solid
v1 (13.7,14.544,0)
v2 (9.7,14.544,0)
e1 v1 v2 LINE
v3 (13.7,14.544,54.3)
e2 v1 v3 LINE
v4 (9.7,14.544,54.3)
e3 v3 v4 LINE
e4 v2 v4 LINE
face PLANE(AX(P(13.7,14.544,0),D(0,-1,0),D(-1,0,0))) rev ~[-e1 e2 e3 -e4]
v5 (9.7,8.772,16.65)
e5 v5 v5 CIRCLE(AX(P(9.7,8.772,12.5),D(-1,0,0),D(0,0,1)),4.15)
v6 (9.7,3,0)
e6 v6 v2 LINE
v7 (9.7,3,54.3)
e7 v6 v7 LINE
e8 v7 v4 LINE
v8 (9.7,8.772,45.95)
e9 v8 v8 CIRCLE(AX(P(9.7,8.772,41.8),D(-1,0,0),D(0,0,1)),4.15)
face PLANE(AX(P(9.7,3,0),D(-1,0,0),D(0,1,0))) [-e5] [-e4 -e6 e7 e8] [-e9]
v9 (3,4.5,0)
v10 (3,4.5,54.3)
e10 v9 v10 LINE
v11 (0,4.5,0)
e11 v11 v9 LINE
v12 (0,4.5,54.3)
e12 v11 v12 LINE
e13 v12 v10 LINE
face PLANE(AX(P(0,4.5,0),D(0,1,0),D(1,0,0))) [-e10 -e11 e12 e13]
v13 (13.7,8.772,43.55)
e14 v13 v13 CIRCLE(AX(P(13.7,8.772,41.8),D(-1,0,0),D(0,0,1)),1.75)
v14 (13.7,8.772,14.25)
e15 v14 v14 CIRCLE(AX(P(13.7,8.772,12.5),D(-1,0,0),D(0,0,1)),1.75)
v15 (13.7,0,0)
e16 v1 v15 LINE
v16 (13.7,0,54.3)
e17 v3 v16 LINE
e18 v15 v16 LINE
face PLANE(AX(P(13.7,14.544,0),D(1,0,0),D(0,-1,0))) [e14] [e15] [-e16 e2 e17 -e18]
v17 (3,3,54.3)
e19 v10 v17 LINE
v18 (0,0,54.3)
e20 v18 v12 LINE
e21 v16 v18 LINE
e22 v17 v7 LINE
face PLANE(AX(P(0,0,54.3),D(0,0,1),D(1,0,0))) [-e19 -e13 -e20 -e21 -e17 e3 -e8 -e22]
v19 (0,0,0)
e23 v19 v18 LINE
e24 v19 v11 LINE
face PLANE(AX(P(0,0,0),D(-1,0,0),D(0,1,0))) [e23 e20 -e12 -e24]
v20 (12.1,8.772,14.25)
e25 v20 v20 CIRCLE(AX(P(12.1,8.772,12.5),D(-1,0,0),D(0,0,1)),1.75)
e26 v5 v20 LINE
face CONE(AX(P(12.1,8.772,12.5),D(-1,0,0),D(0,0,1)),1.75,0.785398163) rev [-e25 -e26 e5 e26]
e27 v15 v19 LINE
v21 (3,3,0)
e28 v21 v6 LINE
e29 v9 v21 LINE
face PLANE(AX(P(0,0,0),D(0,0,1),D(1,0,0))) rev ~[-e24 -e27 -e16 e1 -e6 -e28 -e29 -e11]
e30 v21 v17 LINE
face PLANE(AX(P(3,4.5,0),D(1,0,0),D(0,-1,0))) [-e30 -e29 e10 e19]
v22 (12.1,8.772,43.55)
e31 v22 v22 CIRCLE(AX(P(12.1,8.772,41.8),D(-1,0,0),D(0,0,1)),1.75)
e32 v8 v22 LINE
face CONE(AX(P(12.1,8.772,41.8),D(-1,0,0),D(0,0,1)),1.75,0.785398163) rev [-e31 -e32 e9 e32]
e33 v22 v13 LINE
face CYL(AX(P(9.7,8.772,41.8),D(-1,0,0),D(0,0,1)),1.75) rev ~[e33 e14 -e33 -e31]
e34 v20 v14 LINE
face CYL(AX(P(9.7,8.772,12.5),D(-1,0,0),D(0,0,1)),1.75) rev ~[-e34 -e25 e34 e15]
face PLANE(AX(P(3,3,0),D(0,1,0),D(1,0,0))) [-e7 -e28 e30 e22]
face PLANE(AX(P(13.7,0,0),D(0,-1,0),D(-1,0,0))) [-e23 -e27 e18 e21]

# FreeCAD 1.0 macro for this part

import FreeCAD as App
import Part
import Sketcher

V = App.Vector
Q = App.Units.Quantity


def edges_at(feature, points):
    """Names of the edges that pass closest to the given points."""
    edges = feature.Shape.Edges
    near = lambda p: min(range(len(edges)), key=lambda i: edges[i].distToShape(Part.Vertex(*p))[0])
    return sorted({f"Edge{near(p) + 1}" for p in points})


def add_polygon(sketch, points):
    """Adds a closed chain of lines whose ends are joined by coincident constraints."""
    first, n = sketch.GeometryCount, len(points)
    for a, b in zip(points, points[1:] + points[:1]):
        sketch.addGeometry(Part.LineSegment(App.Vector(*a, 0), App.Vector(*b, 0)), False)
    for i in range(n):
        sketch.addConstraint(Sketcher.Constraint("Coincident", first + i, 2, first + (i + 1) % n, 1))

doc = App.newDocument("Part")
body = doc.addObject("PartDesign::Body", "Body")

sketch1 = body.newObject("Sketcher::SketchObject", "Sketch")
sketch1.AttachmentSupport = (doc.getObject("XY_Plane"), [""])
sketch1.MapMode = "FlatFace"
add_polygon(sketch1, [(0, 4.5), (0, 0), (13.7, 0), (13.7, 14.5), (9.7, 14.5), (9.7, 3), (3, 3), (3, 4.5)])
sketch1.addConstraint([
    Sketcher.Constraint("Vertical", 0),
    Sketcher.Constraint("Horizontal", 1),
    Sketcher.Constraint("Vertical", 2),
    Sketcher.Constraint("Horizontal", 3),
    Sketcher.Constraint("Vertical", 4),
    Sketcher.Constraint("Horizontal", 5),
    Sketcher.Constraint("Vertical", 6),
    Sketcher.Constraint("Horizontal", 7),
    Sketcher.Constraint("Coincident", 0, 2, -1, 1),
    Sketcher.Constraint("DistanceX", 3, 2, 3, 1, Q("4 mm")),
    Sketcher.Constraint("DistanceX", 7, 2, 7, 1, Q("3 mm")),
    Sketcher.Constraint("DistanceX", 1, 1, 1, 2, Q("13.7 mm")),
    Sketcher.Constraint("DistanceY", 0, 2, 0, 1, Q("4.5 mm")),
    Sketcher.Constraint("DistanceY", 6, 1, 6, 2, Q("1.5 mm")),
    Sketcher.Constraint("DistanceY", 2, 1, 2, 2, Q("14.544 mm")),
])
pad1 = body.newObject("PartDesign::Pad", "Pad")
pad1.Profile = sketch1
pad1.Length = 54.3

sketch2 = body.newObject("Sketcher::SketchObject", "Sketch001")
sketch2.AttachmentSupport = (doc.getObject("YZ_Plane"), [""])
sketch2.MapMode = "FlatFace"
sketch2.AttachmentOffset = App.Placement(V(0, 0, 9.7), App.Rotation())
sketch2.addGeometry([
    Part.Circle(V(8.8, 12.5, 0), V(0, 0, 1), 1.8),
    Part.Circle(V(8.8, 41.8, 0), V(0, 0, 1), 1.8),
], False)
sketch2.addConstraint([
    Sketcher.Constraint("Equal", 0, 1),
    Sketcher.Constraint("Vertical", 0, 3, 1, 3),
    Sketcher.Constraint("Diameter", 0, Q("3.5 mm")),
    Sketcher.Constraint("DistanceY", -1, 1, 0, 3, Q("12.5 mm")),
    Sketcher.Constraint("DistanceY", -1, 1, 1, 3, Q("41.8 mm")),
    Sketcher.Constraint("DistanceX", -1, 1, 0, 3, Q("8.772 mm")),
])
pocket1 = body.newObject("PartDesign::Pocket", "Pocket")
pocket1.Profile = sketch2
pocket1.Length = 54.3
pocket1.Reversed = True
doc.recompute()

chamfer = body.newObject("PartDesign::Chamfer", "Chamfer")
chamfer.Base = (pocket1, edges_at(pocket1, [(9.7, 8.772, 10.75), (9.7, 8.772, 40.05)]))
chamfer.Size = 2.4

doc.recompute()
